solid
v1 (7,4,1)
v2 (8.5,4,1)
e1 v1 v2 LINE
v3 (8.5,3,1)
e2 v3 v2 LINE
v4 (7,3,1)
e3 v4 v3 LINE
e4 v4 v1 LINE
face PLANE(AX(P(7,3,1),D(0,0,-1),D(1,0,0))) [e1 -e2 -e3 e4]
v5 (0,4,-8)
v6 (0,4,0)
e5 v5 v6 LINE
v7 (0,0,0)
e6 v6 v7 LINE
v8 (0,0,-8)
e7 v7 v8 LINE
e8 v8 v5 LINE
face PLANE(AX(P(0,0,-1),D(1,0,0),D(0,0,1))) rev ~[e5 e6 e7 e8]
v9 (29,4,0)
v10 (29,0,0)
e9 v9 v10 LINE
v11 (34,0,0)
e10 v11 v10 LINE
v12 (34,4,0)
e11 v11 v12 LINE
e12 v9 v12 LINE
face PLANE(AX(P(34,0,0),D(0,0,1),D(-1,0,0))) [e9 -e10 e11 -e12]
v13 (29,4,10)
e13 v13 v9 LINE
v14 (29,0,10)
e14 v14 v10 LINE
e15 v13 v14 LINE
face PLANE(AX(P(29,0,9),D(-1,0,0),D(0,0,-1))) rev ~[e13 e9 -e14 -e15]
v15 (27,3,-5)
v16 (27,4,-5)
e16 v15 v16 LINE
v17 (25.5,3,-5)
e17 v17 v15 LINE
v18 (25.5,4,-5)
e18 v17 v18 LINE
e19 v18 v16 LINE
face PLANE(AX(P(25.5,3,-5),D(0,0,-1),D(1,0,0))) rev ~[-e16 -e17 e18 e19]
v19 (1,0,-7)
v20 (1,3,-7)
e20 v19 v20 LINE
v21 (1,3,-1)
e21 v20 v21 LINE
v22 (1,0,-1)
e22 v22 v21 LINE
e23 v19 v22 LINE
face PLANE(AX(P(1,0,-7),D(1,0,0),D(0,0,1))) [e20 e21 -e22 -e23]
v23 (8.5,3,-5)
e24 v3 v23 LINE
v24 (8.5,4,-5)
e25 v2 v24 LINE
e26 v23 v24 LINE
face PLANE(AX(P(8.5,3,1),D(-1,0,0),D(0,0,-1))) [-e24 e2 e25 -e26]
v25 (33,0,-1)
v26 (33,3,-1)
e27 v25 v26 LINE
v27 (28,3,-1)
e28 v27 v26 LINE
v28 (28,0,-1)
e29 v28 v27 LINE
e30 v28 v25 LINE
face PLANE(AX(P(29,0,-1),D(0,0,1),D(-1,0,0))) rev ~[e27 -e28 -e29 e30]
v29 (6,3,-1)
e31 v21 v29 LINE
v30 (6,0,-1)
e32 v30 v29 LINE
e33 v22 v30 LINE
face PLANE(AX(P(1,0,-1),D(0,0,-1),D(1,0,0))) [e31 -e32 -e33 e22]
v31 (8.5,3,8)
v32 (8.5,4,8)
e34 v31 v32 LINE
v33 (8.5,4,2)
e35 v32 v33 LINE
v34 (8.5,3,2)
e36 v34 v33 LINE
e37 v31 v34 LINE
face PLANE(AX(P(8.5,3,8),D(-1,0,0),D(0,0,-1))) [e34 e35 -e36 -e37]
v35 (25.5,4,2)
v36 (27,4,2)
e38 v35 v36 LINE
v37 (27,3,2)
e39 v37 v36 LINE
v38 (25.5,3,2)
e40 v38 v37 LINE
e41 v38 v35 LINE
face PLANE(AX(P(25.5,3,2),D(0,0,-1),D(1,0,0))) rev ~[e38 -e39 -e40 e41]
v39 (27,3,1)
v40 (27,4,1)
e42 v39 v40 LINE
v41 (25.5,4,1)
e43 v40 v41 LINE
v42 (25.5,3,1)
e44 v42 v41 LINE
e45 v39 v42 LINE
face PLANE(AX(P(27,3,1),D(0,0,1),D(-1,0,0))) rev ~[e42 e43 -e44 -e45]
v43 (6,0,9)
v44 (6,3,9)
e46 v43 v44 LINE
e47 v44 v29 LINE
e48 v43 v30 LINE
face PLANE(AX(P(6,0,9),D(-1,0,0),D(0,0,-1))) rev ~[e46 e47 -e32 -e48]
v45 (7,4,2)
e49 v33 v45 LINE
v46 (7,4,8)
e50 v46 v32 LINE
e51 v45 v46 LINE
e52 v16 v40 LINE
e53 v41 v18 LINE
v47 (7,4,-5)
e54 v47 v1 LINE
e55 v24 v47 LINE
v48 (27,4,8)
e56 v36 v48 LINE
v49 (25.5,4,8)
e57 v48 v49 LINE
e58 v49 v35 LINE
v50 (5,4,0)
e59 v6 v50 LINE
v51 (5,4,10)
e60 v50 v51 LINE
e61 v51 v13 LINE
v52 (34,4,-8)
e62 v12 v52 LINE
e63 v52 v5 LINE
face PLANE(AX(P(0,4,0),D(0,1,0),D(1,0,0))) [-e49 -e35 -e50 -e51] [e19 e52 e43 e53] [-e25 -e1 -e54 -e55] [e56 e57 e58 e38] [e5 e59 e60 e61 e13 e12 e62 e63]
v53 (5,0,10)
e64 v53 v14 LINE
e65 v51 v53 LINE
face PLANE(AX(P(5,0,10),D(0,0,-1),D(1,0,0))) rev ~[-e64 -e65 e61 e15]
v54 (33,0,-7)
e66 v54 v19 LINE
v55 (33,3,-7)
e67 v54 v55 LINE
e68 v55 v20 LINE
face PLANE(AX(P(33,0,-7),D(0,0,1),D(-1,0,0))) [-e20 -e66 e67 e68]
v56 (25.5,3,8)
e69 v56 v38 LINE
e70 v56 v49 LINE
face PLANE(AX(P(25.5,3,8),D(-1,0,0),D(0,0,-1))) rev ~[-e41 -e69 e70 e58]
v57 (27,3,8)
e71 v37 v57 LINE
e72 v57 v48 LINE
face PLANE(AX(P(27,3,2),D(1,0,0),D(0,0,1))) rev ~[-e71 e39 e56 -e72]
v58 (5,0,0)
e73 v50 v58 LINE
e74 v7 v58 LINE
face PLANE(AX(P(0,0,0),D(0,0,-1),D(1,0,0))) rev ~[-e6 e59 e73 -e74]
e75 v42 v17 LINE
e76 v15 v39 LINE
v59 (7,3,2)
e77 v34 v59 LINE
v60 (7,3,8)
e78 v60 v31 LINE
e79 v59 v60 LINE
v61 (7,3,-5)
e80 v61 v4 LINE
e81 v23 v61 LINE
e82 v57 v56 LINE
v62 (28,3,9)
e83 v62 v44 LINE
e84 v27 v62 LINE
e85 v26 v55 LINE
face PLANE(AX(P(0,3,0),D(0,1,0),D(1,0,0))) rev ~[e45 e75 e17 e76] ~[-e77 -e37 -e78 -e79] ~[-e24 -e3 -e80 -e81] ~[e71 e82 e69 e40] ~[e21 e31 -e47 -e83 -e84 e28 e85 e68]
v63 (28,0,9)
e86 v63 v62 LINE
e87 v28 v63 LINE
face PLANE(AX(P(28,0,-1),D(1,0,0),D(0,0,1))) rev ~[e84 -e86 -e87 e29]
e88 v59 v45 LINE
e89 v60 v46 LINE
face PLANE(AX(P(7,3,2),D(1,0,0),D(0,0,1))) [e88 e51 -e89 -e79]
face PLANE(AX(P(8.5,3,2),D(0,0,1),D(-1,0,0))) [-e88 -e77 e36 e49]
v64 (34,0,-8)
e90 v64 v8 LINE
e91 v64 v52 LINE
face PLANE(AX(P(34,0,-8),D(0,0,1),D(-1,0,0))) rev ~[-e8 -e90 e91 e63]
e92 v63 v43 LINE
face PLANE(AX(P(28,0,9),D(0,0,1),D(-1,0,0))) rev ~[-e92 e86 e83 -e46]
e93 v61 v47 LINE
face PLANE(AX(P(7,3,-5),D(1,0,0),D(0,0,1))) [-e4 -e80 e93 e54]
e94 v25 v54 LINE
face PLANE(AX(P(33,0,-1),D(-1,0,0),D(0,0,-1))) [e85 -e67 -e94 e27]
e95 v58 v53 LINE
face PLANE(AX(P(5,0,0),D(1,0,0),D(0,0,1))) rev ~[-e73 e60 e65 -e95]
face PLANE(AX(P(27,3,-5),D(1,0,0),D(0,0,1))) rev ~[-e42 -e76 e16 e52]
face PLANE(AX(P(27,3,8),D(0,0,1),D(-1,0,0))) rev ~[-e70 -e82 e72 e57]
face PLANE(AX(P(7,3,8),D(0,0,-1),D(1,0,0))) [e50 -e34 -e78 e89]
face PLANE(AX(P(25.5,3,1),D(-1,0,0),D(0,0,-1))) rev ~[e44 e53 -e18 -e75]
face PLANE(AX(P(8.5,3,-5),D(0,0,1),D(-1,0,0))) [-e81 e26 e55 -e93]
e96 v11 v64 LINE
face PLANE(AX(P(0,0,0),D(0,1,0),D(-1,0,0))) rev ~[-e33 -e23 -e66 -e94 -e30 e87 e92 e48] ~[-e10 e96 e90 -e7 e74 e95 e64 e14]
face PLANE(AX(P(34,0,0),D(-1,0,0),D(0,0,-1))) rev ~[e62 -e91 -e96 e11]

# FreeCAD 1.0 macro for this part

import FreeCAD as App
import Part
import Sketcher
from FreeCAD import Vector
Q = App.Units.Quantity


def add_polygon(sketch, points):
    """Adds a closed chain of lines whose ends are joined by coincident constraints."""
    first, n = sketch.GeometryCount, len(points)
    for a, b in zip(points, points[1:] + points[:1]):
        sketch.addGeometry(Part.LineSegment(App.Vector(*a, 0), App.Vector(*b, 0)), False)
    for i in range(n):
        sketch.addConstraint(Sketcher.Constraint("Coincident", first + i, 2, first + (i + 1) % n, 1))

doc = App.newDocument("Part")
body = doc.addObject("PartDesign::Body", "Body")

sketch1 = body.newObject("Sketcher::SketchObject", "Sketch")
sketch1.AttachmentSupport = (doc.getObject("XZ_Plane"), [""])
sketch1.MapMode = "FlatFace"
add_polygon(sketch1, [(29, 0), (34, 0), (34, -8), (0, -8), (0, 0), (5, 0), (5, 10), (29, 10)])
add_polygon(sketch1, [(33, -7), (33, -1), (28, -1), (28, 9), (6, 9), (6, -1), (1, -1), (1, -7)])
sketch1.addConstraint([
    Sketcher.Constraint("Horizontal", 0),
    Sketcher.Constraint("Vertical", 1),
    Sketcher.Constraint("Horizontal", 2),
    Sketcher.Constraint("Vertical", 3),
    Sketcher.Constraint("Horizontal", 4),
    Sketcher.Constraint("Vertical", 5),
    Sketcher.Constraint("Horizontal", 6),
    Sketcher.Constraint("Vertical", 7),
    Sketcher.Constraint("Vertical", 8),
    Sketcher.Constraint("Horizontal", 9),
    Sketcher.Constraint("Vertical", 10),
    Sketcher.Constraint("Horizontal", 11),
    Sketcher.Constraint("Vertical", 12),
    Sketcher.Constraint("Horizontal", 13),
    Sketcher.Constraint("Vertical", 14),
    Sketcher.Constraint("Horizontal", 15),
    Sketcher.Constraint("Coincident", 3, 2, -1, 1),
    Sketcher.Constraint("PointOnObject", 0, 2, -1),
    Sketcher.Constraint("Horizontal", 9, 2, 12, 2),
    Sketcher.Constraint("Equal", 0, 4),
    Sketcher.Constraint("Equal", 4, 9),
    Sketcher.Constraint("Equal", 9, 13),
    Sketcher.Constraint("Equal", 7, 10),
    Sketcher.Constraint("DistanceX", 2, 2, 2, 1, Q("34 mm")),
    Sketcher.Constraint("DistanceX", 6, 1, 6, 2, Q("24 mm")),
    Sketcher.Constraint("DistanceX", 11, 2, 11, 1, Q("22 mm")),
    Sketcher.Constraint("DistanceY", 1, 2, 1, 1, Q("8 mm")),
    Sketcher.Constraint("DistanceY", 5, 1, 5, 2, Q("10 mm")),
    Sketcher.Constraint("DistanceY", 8, 1, 8, 2, Q("6 mm")),
    Sketcher.Constraint("DistanceX", -1, 1, 11, 2, Q("6 mm")),
    Sketcher.Constraint("DistanceY", 8, 2, -1, 1, Q("1 mm")),
])
pad1 = body.newObject("PartDesign::Pad", "Pad")
pad1.Profile = sketch1
pad1.Length = 3
pad1.Reversed = True

sketch2 = body.newObject("Sketcher::SketchObject", "Sketch001")
sketch2.AttachmentSupport = (doc.getObject("XZ_Plane"), [""])
sketch2.MapMode = "FlatFace"
sketch2.AttachmentOffset = App.Placement(Vector(0, 0, -3), App.Rotation())
add_polygon(sketch2, [(34, -8), (0, -8), (0, 0), (5, 0), (5, 10), (29, 10), (29, 0), (34, 0)])
sketch2.addConstraint([
    Sketcher.Constraint("Horizontal", 0),
    Sketcher.Constraint("Vertical", 1),
    Sketcher.Constraint("Horizontal", 2),
    Sketcher.Constraint("Vertical", 3),
    Sketcher.Constraint("Horizontal", 4),
    Sketcher.Constraint("Vertical", 5),
    Sketcher.Constraint("Horizontal", 6),
    Sketcher.Constraint("Vertical", 7),
    Sketcher.Constraint("Coincident", 1, 2, -1, 1),
    Sketcher.Constraint("PointOnObject", 5, 2, -1),
    Sketcher.Constraint("Equal", 2, 6),
    Sketcher.Constraint("DistanceX", 0, 2, 0, 1, Q("34 mm")),
    Sketcher.Constraint("DistanceX", 2, 1, 2, 2, Q("5 mm")),
    Sketcher.Constraint("DistanceY", 1, 1, 1, 2, Q("8 mm")),
    Sketcher.Constraint("DistanceY", 3, 1, 3, 2, Q("10 mm")),
])
pad2 = body.newObject("PartDesign::Pad", "Pad001")
pad2.Profile = sketch2
pad2.Length = 1
pad2.Reversed = True

sketch3 = body.newObject("Sketcher::SketchObject", "Sketch002")
sketch3.AttachmentSupport = (doc.getObject("XZ_Plane"), [""])
sketch3.MapMode = "FlatFace"
sketch3.AttachmentOffset = App.Placement(Vector(0, 0, -3), App.Rotation())
add_polygon(sketch3, [(27, -5), (27, 1), (25.5, 1), (25.5, -5)])
add_polygon(sketch3, [(27, 2), (27, 8), (25.5, 8), (25.5, 2)])
add_polygon(sketch3, [(8.5, 1), (7, 1), (7, -5), (8.5, -5)])
add_polygon(sketch3, [(8.5, 8), (7, 8), (7, 2), (8.5, 2)])
sketch3.addConstraint([
    Sketcher.Constraint("Vertical", 0),
    Sketcher.Constraint("Horizontal", 1),
    Sketcher.Constraint("Vertical", 2),
    Sketcher.Constraint("Horizontal", 3),
    Sketcher.Constraint("Vertical", 4),
    Sketcher.Constraint("Horizontal", 5),
    Sketcher.Constraint("Vertical", 6),
    Sketcher.Constraint("Horizontal", 7),
    Sketcher.Constraint("Horizontal", 8),
    Sketcher.Constraint("Vertical", 9),
    Sketcher.Constraint("Horizontal", 10),
    Sketcher.Constraint("Vertical", 11),
    Sketcher.Constraint("Horizontal", 12),
    Sketcher.Constraint("Vertical", 13),
    Sketcher.Constraint("Horizontal", 14),
    Sketcher.Constraint("Vertical", 15),
    Sketcher.Constraint("Horizontal", 1, 2, 8, 2),
    Sketcher.Constraint("Horizontal", 3, 2, 9, 2),
    Sketcher.Constraint("Horizontal", 5, 2, 12, 2),
    Sketcher.Constraint("Horizontal", 7, 2, 13, 2),
    Sketcher.Constraint("Vertical", 3, 2, 4, 2),
    Sketcher.Constraint("Vertical", 2, 2, 5, 2),
    Sketcher.Constraint("Vertical", 9, 2, 12, 2),
    Sketcher.Constraint("Vertical", 11, 2, 14, 2),
    Sketcher.Constraint("Equal", 7, 8),
    Sketcher.Constraint("Equal", 2, 4),
    Sketcher.Constraint("DistanceY", 0, 1, 0, 2, Q("6 mm")),
    Sketcher.Constraint("DistanceX", 1, 2, 1, 1, Q("1.5 mm")),
    Sketcher.Constraint("DistanceY", -1, 1, 0, 2, Q("1 mm")),
    Sketcher.Constraint("DistanceY", 1, 2, 6, 2, Q("1 mm")),
    Sketcher.Constraint("DistanceX", -1, 1, 0, 2, Q("27 mm")),
    Sketcher.Constraint("DistanceX", -1, 1, 8, 2, Q("7 mm")),
])
pocket1 = body.newObject("PartDesign::Pocket", "Pocket")
pocket1.Profile = sketch3
pocket1.Length = 1

doc.recompute()
